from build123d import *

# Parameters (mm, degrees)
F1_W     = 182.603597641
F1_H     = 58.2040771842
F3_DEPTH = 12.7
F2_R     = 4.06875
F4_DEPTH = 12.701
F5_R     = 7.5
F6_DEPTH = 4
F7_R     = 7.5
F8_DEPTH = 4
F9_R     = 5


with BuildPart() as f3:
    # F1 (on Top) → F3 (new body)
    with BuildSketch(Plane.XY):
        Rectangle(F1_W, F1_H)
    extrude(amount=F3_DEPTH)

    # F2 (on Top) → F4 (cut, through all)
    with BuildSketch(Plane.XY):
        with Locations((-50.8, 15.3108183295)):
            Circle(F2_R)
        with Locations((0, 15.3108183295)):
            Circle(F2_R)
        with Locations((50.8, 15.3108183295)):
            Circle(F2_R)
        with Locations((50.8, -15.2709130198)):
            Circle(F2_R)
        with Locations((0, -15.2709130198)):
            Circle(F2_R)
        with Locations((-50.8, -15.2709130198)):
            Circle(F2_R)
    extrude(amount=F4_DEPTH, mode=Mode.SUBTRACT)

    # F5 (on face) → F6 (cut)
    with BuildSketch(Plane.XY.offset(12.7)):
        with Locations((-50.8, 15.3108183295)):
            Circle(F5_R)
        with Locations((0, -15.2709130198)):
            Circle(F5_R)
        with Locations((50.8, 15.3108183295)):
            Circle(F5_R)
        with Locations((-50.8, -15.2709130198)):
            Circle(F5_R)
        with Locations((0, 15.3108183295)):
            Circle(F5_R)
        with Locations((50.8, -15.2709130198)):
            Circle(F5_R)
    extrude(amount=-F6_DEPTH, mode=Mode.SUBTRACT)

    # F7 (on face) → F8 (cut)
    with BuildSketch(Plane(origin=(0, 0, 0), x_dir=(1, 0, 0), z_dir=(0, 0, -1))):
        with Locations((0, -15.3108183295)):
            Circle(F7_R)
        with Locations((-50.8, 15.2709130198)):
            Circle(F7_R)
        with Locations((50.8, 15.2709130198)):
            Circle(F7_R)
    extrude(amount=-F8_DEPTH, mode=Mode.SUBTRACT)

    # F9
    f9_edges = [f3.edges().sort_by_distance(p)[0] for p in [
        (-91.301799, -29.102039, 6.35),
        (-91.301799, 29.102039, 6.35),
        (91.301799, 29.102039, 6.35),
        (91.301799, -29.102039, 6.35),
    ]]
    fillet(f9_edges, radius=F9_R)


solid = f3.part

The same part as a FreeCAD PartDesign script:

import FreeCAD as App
import Part
import Sketcher

V = App.Vector
Q = App.Units.Quantity


def edges_at(feature, points):
    """Names of the edges that pass closest to the given points."""
    edges = feature.Shape.Edges
    near = lambda p: min(range(len(edges)), key=lambda i: edges[i].distToShape(Part.Vertex(*p))[0])
    return sorted({f"Edge{near(p) + 1}" for p in points})

doc = App.newDocument("Part")
body = doc.addObject("PartDesign::Body", "Body")

# Sketch on XY plane
sketch1 = doc.addObject("Sketcher::SketchObject", "Sketch")
body.addObject(sketch1)
sketch1.AttachmentSupport = (doc.XY_Plane, [""])
sketch1.MapMode = "FlatFace"
sketch1.addGeometry(Part.LineSegment(V(-91, 29, 0), V(-91, -29, 0)), False)
sketch1.addGeometry(Part.LineSegment(V(-91, -29, 0), V(91, -29, 0)), False)
sketch1.addGeometry(Part.LineSegment(V(91, -29, 0), V(91, 29, 0)), False)
sketch1.addGeometry(Part.LineSegment(V(91, 29, 0), V(-91, 29, 0)), False)
sketch1.addConstraint(Sketcher.Constraint("Coincident", 0, 2, 1, 1))
sketch1.addConstraint(Sketcher.Constraint("Coincident", 1, 2, 2, 1))
sketch1.addConstraint(Sketcher.Constraint("Coincident", 2, 2, 3, 1))
sketch1.addConstraint(Sketcher.Constraint("Coincident", 3, 2, 0, 1))
sketch1.addConstraint(Sketcher.Constraint("Vertical", 0))
sketch1.addConstraint(Sketcher.Constraint("Horizontal", 1))
sketch1.addConstraint(Sketcher.Constraint("Vertical", 2))
sketch1.addConstraint(Sketcher.Constraint("Horizontal", 3))
sketch1.addConstraint(Sketcher.Constraint("Symmetric", 0, 2, 2, 2, -1, 1))
sketch1.addConstraint(Sketcher.Constraint("DistanceX", 0, 2, -1, 1, Q("91.301799 mm")))
sketch1.addConstraint(Sketcher.Constraint("DistanceY", 0, 2, 0, 1, Q("58.204077 mm")))
pad1 = doc.addObject("PartDesign::Pad", "Pad")
body.addObject(pad1)
pad1.Profile = sketch1
pad1.Length = 12.7

# Sketch on XY plane
sketch2 = doc.addObject("Sketcher::SketchObject", "Sketch001")
body.addObject(sketch2)
sketch2.AttachmentSupport = (doc.XY_Plane, [""])
sketch2.MapMode = "FlatFace"
sketch2.addGeometry(Part.Circle(V(-50.8, 15.3, 0), V(0, 0, 1), 4.1), False)
sketch2.addGeometry(Part.Circle(V(0, 15.3, 0), V(0, 0, 1), 4.1), False)
sketch2.addGeometry(Part.Circle(V(50.8, 15.3, 0), V(0, 0, 1), 4.1), False)
sketch2.addGeometry(Part.Circle(V(50.8, -15.3, 0), V(0, 0, 1), 4.1), False)
sketch2.addGeometry(Part.Circle(V(0, -15.3, 0), V(0, 0, 1), 4.1), False)
sketch2.addGeometry(Part.Circle(V(-50.8, -15.3, 0), V(0, 0, 1), 4.1), False)
sketch2.addConstraint(Sketcher.Constraint("Equal", 0, 1))
sketch2.addConstraint(Sketcher.Constraint("Equal", 1, 2))
sketch2.addConstraint(Sketcher.Constraint("Equal", 2, 3))
sketch2.addConstraint(Sketcher.Constraint("Equal", 3, 4))
sketch2.addConstraint(Sketcher.Constraint("Equal", 4, 5))
sketch2.addConstraint(Sketcher.Constraint("Symmetric", 0, 3, 2, 3, -2))
sketch2.addConstraint(Sketcher.Constraint("Symmetric", 3, 3, 5, 3, -2))
sketch2.addConstraint(Sketcher.Constraint("PointOnObject", 1, 3, -2))
sketch2.addConstraint(Sketcher.Constraint("PointOnObject", 4, 3, -2))
sketch2.addConstraint(Sketcher.Constraint("Horizontal", 0, 3, 1, 3))
sketch2.addConstraint(Sketcher.Constraint("Horizontal", 3, 3, 4, 3))
sketch2.addConstraint(Sketcher.Constraint("Vertical", 2, 3, 3, 3))
sketch2.addConstraint(Sketcher.Constraint("Diameter", 0, Q("8.1375 mm")))
sketch2.addConstraint(Sketcher.Constraint("DistanceX", 0, 3, -1, 1, Q("50.8 mm")))
sketch2.addConstraint(Sketcher.Constraint("DistanceY", -1, 1, 0, 3, Q("15.310818 mm")))
sketch2.addConstraint(Sketcher.Constraint("DistanceY", 3, 3, 2, 3, Q("30.581731 mm")))
pocket1 = doc.addObject("PartDesign::Pocket", "Pocket")
body.addObject(pocket1)
pocket1.Profile = sketch2
pocket1.Type = "ThroughAll"
pocket1.Reversed = True

# Sketch on XY plane
sketch3 = doc.addObject("Sketcher::SketchObject", "Sketch002")
body.addObject(sketch3)
sketch3.AttachmentSupport = (doc.XY_Plane, [""])
sketch3.MapMode = "FlatFace"
sketch3.AttachmentOffset = App.Placement(V(0, 0, 12.7), App.Rotation())
sketch3.addGeometry(Part.Circle(V(-51, 15, 0), V(0, 0, 1), 8), False)
sketch3.addGeometry(Part.Circle(V(0, -15, 0), V(0, 0, 1), 8), False)
sketch3.addGeometry(Part.Circle(V(51, 15, 0), V(0, 0, 1), 8), False)
sketch3.addGeometry(Part.Circle(V(-51, -15, 0), V(0, 0, 1), 8), False)
sketch3.addGeometry(Part.Circle(V(0, 15, 0), V(0, 0, 1), 8), False)
sketch3.addGeometry(Part.Circle(V(51, -15, 0), V(0, 0, 1), 8), False)
sketch3.addConstraint(Sketcher.Constraint("Equal", 0, 1))
sketch3.addConstraint(Sketcher.Constraint("Equal", 1, 2))
sketch3.addConstraint(Sketcher.Constraint("Equal", 2, 3))
sketch3.addConstraint(Sketcher.Constraint("Equal", 3, 4))
sketch3.addConstraint(Sketcher.Constraint("Equal", 4, 5))
sketch3.addConstraint(Sketcher.Constraint("Symmetric", 0, 3, 2, 3, -2))
sketch3.addConstraint(Sketcher.Constraint("Symmetric", 3, 3, 5, 3, -2))
sketch3.addConstraint(Sketcher.Constraint("PointOnObject", 1, 3, -2))
sketch3.addConstraint(Sketcher.Constraint("PointOnObject", 4, 3, -2))
sketch3.addConstraint(Sketcher.Constraint("Horizontal", 1, 3, 3, 3))
sketch3.addConstraint(Sketcher.Constraint("Horizontal", 2, 3, 4, 3))
sketch3.addConstraint(Sketcher.Constraint("Vertical", 0, 3, 3, 3))
sketch3.addConstraint(Sketcher.Constraint("Diameter", 0, Q("15 mm")))
sketch3.addConstraint(Sketcher.Constraint("DistanceX", 0, 3, -1, 1, Q("50.8 mm")))
sketch3.addConstraint(Sketcher.Constraint("DistanceY", -1, 1, 0, 3, Q("15.310818 mm")))
sketch3.addConstraint(Sketcher.Constraint("DistanceY", 1, 3, 0, 3, Q("30.581731 mm")))
pocket2 = doc.addObject("PartDesign::Pocket", "Pocket001")
body.addObject(pocket2)
pocket2.Profile = sketch3
pocket2.Length = 4

# Sketch on XY plane
sketch4 = doc.addObject("Sketcher::SketchObject", "Sketch003")
body.addObject(sketch4)
sketch4.AttachmentSupport = (doc.XY_Plane, [""])
sketch4.MapMode = "FlatFace"
sketch4.addGeometry(Part.Circle(V(0, 15, 0), V(0, 0, 1), 8), False)
sketch4.addGeometry(Part.Circle(V(-51, -15, 0), V(0, 0, 1), 8), False)
sketch4.addGeometry(Part.Circle(V(51, -15, 0), V(0, 0, 1), 8), False)
sketch4.addConstraint(Sketcher.Constraint("Equal", 0, 1))
sketch4.addConstraint(Sketcher.Constraint("Equal", 1, 2))
sketch4.addConstraint(Sketcher.Constraint("Symmetric", 1, 3, 2, 3, -2))
sketch4.addConstraint(Sketcher.Constraint("PointOnObject", 0, 3, -2))
sketch4.addConstraint(Sketcher.Constraint("Diameter", 0, Q("15 mm")))
sketch4.addConstraint(Sketcher.Constraint("DistanceX", 1, 3, -1, 1, Q("50.8 mm")))
sketch4.addConstraint(Sketcher.Constraint("DistanceY", -1, 1, 0, 3, Q("15.310818 mm")))
sketch4.addConstraint(Sketcher.Constraint("DistanceY", 1, 3, 0, 3, Q("30.581731 mm")))
pocket3 = doc.addObject("PartDesign::Pocket", "Pocket002")
body.addObject(pocket3)
pocket3.Profile = sketch4
pocket3.Length = 4
pocket3.Reversed = True
doc.recompute()

fillet = doc.addObject("PartDesign::Fillet", "Fillet")
body.addObject(fillet)
fillet.Base = (pocket3, edges_at(pocket3, [
    (-91.302, -29.102, 6.35),
    (-91.302, 29.102, 6.35),
    (91.302, 29.102, 6.35),
    (91.302, -29.102, 6.35),
]))
fillet.Radius = 5

doc.recompute()
